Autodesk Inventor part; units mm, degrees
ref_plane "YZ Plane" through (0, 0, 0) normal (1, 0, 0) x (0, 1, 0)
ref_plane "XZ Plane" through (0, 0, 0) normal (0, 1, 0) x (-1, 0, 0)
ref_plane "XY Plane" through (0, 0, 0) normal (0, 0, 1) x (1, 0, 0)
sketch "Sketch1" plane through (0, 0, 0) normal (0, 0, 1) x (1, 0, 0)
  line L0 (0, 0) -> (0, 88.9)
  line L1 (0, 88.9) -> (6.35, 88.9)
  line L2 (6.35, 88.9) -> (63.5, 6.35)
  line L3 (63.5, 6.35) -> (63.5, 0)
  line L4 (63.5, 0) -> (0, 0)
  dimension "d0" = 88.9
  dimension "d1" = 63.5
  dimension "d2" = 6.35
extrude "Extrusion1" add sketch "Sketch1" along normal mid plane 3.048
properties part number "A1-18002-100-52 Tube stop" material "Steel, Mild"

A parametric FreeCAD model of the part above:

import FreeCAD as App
import Part
import Sketcher

V = App.Vector
Q = App.Units.Quantity


def add_polygon(sketch, points):
    """Adds a closed chain of lines whose ends are joined by coincident constraints."""
    first, n = sketch.GeometryCount, len(points)
    for a, b in zip(points, points[1:] + points[:1]):
        sketch.addGeometry(Part.LineSegment(App.Vector(*a, 0), App.Vector(*b, 0)), False)
    for i in range(n):
        sketch.addConstraint(Sketcher.Constraint("Coincident", first + i, 2, first + (i + 1) % n, 1))

doc = App.newDocument("Part")
params = doc.addObject("Spreadsheet::Sheet", "Params")
for row, (alias, value) in enumerate([
    ("sketch1_width", "2.5 in"),
    ("sketch1_height", "3.5 in"),
    ("sketch1_width2", "0.25 in"),
    ("pad1_length", "0.12 in"),
], start=1):
    params.set(f"A{row}", alias)
    params.set(f"B{row}", "=" + value)
    params.setAlias(f"B{row}", alias)

body = doc.addObject("PartDesign::Body", "Body")

sketch1 = body.newObject("Sketcher::SketchObject", "Sketch")
sketch1.AttachmentSupport = (doc.getObject("XY_Plane"), [""])
sketch1.MapMode = "FlatFace"
add_polygon(sketch1, [(0, 88.9), (0, 0), (63.5, 0), (63.5, 6.35), (6.35, 88.9)])
sketch1.addConstraint([
    Sketcher.Constraint("Vertical", 0),
    Sketcher.Constraint("Horizontal", 1),
    Sketcher.Constraint("Vertical", 2),
    Sketcher.Constraint("Horizontal", 4),
    Sketcher.Constraint("Coincident", 0, 2, -1, 1),
    Sketcher.Constraint("Equal", 4, 2),
    Sketcher.Constraint("DistanceX", 1, 1, 1, 2, Q("2.5 in")),
    Sketcher.Constraint("DistanceY", 0, 2, 0, 1, Q("3.5 in")),
    Sketcher.Constraint("DistanceX", 4, 2, 4, 1, Q("0.25 in")),
])
sketch1.setExpression("Constraints[11]", "Params.sketch1_width")
sketch1.setExpression("Constraints[12]", "Params.sketch1_height")
sketch1.setExpression("Constraints[13]", "Params.sketch1_width2")
pad1 = body.newObject("PartDesign::Pad", "Pad")
pad1.Profile = sketch1
pad1.setExpression("Length", "Params.pad1_length")
pad1.Midplane = True

doc.recompute()
